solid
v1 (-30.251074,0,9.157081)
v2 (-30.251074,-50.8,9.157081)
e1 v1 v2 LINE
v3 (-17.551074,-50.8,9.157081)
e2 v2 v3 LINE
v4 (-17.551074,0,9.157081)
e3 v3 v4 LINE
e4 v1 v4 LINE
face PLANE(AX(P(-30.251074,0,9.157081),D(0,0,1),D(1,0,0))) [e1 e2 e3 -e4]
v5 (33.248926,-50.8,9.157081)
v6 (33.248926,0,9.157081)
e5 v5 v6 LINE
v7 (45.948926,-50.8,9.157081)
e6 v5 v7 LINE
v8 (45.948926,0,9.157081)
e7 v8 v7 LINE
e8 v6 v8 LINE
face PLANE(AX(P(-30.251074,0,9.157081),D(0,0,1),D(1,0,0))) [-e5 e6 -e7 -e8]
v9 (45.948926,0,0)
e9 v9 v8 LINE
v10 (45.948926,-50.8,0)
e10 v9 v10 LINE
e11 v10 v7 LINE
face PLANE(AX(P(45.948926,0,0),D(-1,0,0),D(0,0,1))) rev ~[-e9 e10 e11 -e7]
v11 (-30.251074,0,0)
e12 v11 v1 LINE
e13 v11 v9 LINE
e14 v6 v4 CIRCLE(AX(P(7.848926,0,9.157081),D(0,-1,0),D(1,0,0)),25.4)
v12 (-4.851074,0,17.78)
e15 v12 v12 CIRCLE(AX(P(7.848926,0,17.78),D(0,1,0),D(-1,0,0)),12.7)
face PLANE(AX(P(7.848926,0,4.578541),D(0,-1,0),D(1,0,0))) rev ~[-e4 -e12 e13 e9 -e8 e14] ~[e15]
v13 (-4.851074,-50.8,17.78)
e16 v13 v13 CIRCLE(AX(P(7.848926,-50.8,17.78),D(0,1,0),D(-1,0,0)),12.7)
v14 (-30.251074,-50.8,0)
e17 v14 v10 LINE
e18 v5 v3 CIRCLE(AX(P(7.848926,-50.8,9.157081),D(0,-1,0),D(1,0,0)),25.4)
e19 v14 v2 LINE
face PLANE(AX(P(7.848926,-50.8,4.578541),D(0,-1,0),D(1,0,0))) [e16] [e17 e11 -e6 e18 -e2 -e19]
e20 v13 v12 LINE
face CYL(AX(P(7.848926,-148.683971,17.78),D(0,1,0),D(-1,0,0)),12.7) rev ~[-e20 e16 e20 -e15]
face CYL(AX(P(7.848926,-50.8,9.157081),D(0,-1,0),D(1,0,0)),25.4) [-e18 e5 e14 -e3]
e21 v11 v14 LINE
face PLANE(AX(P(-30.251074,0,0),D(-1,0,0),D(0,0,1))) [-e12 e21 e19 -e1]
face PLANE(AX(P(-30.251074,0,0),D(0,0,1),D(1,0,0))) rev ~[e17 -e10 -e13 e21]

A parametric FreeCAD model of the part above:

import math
import FreeCAD as App
import Part
import Sketcher
Q = App.Units.Quantity

doc = App.newDocument("Part")
params = doc.addObject("Spreadsheet::Sheet", "Params")
for row, (alias, value) in enumerate([
    ("sketch1_width", "3 in"),
    ("pad1_length", "2 in"),
    ("sketch2_radius", "1 in"),
    ("pad2_length", "2 in"),
    ("sketch3_diameter", "1 in"),
    ("hole_diameter", "1 in"),
], start=1):
    params.set(f"A{row}", alias)
    params.set(f"B{row}", "=" + value)
    params.setAlias(f"B{row}", alias)

body = doc.addObject("PartDesign::Body", "Body")

sketch1 = doc.addObject("Sketcher::SketchObject", "Sketch")
body.addObject(sketch1)
sketch1.AttachmentSupport = (doc.XZ_Plane, [""])
sketch1.MapMode = "FlatFace"
sketch1.addGeometry([
    Part.LineSegment(App.Vector(-30, 9, 0), App.Vector(-30, 0, 0)),
    Part.LineSegment(App.Vector(-30, 0, 0), App.Vector(46, 0, 0)),
    Part.LineSegment(App.Vector(46, 0, 0), App.Vector(46, 9, 0)),
    Part.LineSegment(App.Vector(46, 9, 0), App.Vector(-30, 9, 0)),
], False)
sketch1.addConstraint([
    Sketcher.Constraint("Coincident", 0, 2, 1, 1),
    Sketcher.Constraint("Coincident", 1, 2, 2, 1),
    Sketcher.Constraint("Coincident", 2, 2, 3, 1),
    Sketcher.Constraint("Coincident", 3, 2, 0, 1),
    Sketcher.Constraint("Vertical", 0),
    Sketcher.Constraint("Horizontal", 1),
    Sketcher.Constraint("Vertical", 2),
    Sketcher.Constraint("Horizontal", 3),
    Sketcher.Constraint("PointOnObject", 0, 2, -1),
    Sketcher.Constraint("DistanceX", 1, 1, 1, 2, Q("3 in")),
    Sketcher.Constraint("DistanceY", 0, 2, 0, 1, Q("9.157081 mm")),
    Sketcher.Constraint("DistanceX", 0, 2, -1, 1, Q("30.251074 mm")),
])
sketch1.setExpression("Constraints[9]", "Params.sketch1_width")
pad1 = doc.addObject("PartDesign::Pad", "Pad")
body.addObject(pad1)
pad1.Profile = sketch1
pad1.setExpression("Length", "Params.pad1_length")

sketch2 = doc.addObject("Sketcher::SketchObject", "Sketch001")
body.addObject(sketch2)
sketch2.AttachmentSupport = (doc.XZ_Plane, [""])
sketch2.MapMode = "FlatFace"
sketch2.AttachmentOffset = App.Placement(App.Vector(0, 0, 2 * 25.4), App.Rotation())
sketch2.addGeometry([
    Part.LineSegment(App.Vector(-18, 9, 0), App.Vector(33, 9, 0)),
    Part.ArcOfCircle(Part.Circle(App.Vector(8, 9, 0), App.Vector(0, 0, 1), 25), math.radians(0), math.radians(180)),
], False)
sketch2.addConstraint([
    Sketcher.Constraint("Coincident", 0, 1, 1, 2),
    Sketcher.Constraint("Coincident", 1, 1, 0, 2),
    Sketcher.Constraint("Horizontal", 0),
    Sketcher.Constraint("Horizontal", 1, 3, 0, 1),
    Sketcher.Constraint("Radius", 1, Q("1 in")),
    Sketcher.Constraint("DistanceY", -1, 1, 1, 3, Q("9.157081 mm")),
    Sketcher.Constraint("DistanceX", -1, 1, 1, 3, Q("7.848926 mm")),
])
sketch2.setExpression("Constraints[4]", "Params.sketch2_radius")
pad2 = doc.addObject("PartDesign::Pad", "Pad001")
body.addObject(pad2)
pad2.Profile = sketch2
pad2.setExpression("Length", "Params.pad2_length")
pad2.Reversed = True

sketch3 = doc.addObject("Sketcher::SketchObject", "Sketch002")
body.addObject(sketch3)
sketch3.AttachmentSupport = (doc.XZ_Plane, [""])
sketch3.MapMode = "FlatFace"
sketch3.AttachmentOffset = App.Placement(App.Vector(0, 0, 2 * 25.4), App.Rotation())
sketch3.addGeometry(Part.Circle(App.Vector(8, 18, 0), App.Vector(0, 0, 1), 13), False)
sketch3.addConstraint([
    Sketcher.Constraint("Diameter", 0, Q("1 in")),
    Sketcher.Constraint("DistanceY", -1, 1, 0, 3, Q("0.7 in")),
    Sketcher.Constraint("DistanceX", -1, 1, 0, 3, Q("7.848926 mm")),
])
sketch3.setExpression("Constraints[0]", "Params.sketch3_diameter")
doc.recompute()
hole = doc.addObject("PartDesign::Hole", "Hole")
body.addObject(hole)
hole.Profile = sketch3
hole.ThreadType = "None"
hole.setExpression("Diameter", "Params.hole_diameter")
hole.DepthType = "ThroughAll"

doc.recompute()
